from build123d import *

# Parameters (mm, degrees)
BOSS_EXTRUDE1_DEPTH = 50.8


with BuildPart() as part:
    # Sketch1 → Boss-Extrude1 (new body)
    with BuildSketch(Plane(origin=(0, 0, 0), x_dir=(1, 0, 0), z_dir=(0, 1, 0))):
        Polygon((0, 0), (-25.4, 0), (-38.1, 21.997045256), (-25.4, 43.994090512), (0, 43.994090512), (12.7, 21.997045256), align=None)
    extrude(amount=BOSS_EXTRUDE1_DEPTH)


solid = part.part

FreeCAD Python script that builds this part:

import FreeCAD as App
import Part
import Sketcher

V = App.Vector
Q = App.Units.Quantity

doc = App.newDocument("Part")
body = doc.addObject("PartDesign::Body", "Body")

# Sketch on XZ plane
sketch1 = body.newObject("Sketcher::SketchObject", "Sketch")
sketch1.AttachmentSupport = (doc.getObject("XZ_Plane"), [""])
sketch1.MapMode = "FlatFace"
sketch1.addGeometry(Part.LineSegment(V(-25, 0, 0), V(0, 0, 0)), False)
sketch1.addGeometry(Part.LineSegment(V(0, 0, 0), V(13, -22, 0)), False)
sketch1.addGeometry(Part.LineSegment(V(13, -22, 0), V(0, -44, 0)), False)
sketch1.addGeometry(Part.LineSegment(V(0, -44, 0), V(-25, -44, 0)), False)
sketch1.addGeometry(Part.LineSegment(V(-25, -44, 0), V(-38, -22, 0)), False)
sketch1.addGeometry(Part.LineSegment(V(-38, -22, 0), V(-25, 0, 0)), False)
sketch1.addConstraint(Sketcher.Constraint("Coincident", 0, 2, 1, 1))
sketch1.addConstraint(Sketcher.Constraint("Coincident", 1, 2, 2, 1))
sketch1.addConstraint(Sketcher.Constraint("Coincident", 2, 2, 3, 1))
sketch1.addConstraint(Sketcher.Constraint("Coincident", 3, 2, 4, 1))
sketch1.addConstraint(Sketcher.Constraint("Coincident", 4, 2, 5, 1))
sketch1.addConstraint(Sketcher.Constraint("Coincident", 5, 2, 0, 1))
sketch1.addConstraint(Sketcher.Constraint("Horizontal", 0))
sketch1.addConstraint(Sketcher.Constraint("Horizontal", 3))
sketch1.addConstraint(Sketcher.Constraint("Coincident", 0, 2, -1, 1))
sketch1.addConstraint(Sketcher.Constraint("PointOnObject", 2, 2, -2))
sketch1.addConstraint(Sketcher.Constraint("Parallel", 1, 4))
sketch1.addConstraint(Sketcher.Constraint("Parallel", 2, 5))
sketch1.addConstraint(Sketcher.Constraint("Horizontal", 1, 2, 4, 2))
sketch1.addConstraint(Sketcher.Constraint("Vertical", 3, 2, 5, 2))
sketch1.addConstraint(Sketcher.Constraint("DistanceX", 0, 1, 0, 2, Q("1 in")))
sketch1.addConstraint(Sketcher.Constraint("Distance", 1, Q("1 in")))
sketch1.addConstraint(Sketcher.Constraint("Angle", 1, Q("-60 deg")))
pad1 = body.newObject("PartDesign::Pad", "Pad")
pad1.Profile = sketch1
pad1.Length = Q("2 in")
pad1.Reversed = True

doc.recompute()
